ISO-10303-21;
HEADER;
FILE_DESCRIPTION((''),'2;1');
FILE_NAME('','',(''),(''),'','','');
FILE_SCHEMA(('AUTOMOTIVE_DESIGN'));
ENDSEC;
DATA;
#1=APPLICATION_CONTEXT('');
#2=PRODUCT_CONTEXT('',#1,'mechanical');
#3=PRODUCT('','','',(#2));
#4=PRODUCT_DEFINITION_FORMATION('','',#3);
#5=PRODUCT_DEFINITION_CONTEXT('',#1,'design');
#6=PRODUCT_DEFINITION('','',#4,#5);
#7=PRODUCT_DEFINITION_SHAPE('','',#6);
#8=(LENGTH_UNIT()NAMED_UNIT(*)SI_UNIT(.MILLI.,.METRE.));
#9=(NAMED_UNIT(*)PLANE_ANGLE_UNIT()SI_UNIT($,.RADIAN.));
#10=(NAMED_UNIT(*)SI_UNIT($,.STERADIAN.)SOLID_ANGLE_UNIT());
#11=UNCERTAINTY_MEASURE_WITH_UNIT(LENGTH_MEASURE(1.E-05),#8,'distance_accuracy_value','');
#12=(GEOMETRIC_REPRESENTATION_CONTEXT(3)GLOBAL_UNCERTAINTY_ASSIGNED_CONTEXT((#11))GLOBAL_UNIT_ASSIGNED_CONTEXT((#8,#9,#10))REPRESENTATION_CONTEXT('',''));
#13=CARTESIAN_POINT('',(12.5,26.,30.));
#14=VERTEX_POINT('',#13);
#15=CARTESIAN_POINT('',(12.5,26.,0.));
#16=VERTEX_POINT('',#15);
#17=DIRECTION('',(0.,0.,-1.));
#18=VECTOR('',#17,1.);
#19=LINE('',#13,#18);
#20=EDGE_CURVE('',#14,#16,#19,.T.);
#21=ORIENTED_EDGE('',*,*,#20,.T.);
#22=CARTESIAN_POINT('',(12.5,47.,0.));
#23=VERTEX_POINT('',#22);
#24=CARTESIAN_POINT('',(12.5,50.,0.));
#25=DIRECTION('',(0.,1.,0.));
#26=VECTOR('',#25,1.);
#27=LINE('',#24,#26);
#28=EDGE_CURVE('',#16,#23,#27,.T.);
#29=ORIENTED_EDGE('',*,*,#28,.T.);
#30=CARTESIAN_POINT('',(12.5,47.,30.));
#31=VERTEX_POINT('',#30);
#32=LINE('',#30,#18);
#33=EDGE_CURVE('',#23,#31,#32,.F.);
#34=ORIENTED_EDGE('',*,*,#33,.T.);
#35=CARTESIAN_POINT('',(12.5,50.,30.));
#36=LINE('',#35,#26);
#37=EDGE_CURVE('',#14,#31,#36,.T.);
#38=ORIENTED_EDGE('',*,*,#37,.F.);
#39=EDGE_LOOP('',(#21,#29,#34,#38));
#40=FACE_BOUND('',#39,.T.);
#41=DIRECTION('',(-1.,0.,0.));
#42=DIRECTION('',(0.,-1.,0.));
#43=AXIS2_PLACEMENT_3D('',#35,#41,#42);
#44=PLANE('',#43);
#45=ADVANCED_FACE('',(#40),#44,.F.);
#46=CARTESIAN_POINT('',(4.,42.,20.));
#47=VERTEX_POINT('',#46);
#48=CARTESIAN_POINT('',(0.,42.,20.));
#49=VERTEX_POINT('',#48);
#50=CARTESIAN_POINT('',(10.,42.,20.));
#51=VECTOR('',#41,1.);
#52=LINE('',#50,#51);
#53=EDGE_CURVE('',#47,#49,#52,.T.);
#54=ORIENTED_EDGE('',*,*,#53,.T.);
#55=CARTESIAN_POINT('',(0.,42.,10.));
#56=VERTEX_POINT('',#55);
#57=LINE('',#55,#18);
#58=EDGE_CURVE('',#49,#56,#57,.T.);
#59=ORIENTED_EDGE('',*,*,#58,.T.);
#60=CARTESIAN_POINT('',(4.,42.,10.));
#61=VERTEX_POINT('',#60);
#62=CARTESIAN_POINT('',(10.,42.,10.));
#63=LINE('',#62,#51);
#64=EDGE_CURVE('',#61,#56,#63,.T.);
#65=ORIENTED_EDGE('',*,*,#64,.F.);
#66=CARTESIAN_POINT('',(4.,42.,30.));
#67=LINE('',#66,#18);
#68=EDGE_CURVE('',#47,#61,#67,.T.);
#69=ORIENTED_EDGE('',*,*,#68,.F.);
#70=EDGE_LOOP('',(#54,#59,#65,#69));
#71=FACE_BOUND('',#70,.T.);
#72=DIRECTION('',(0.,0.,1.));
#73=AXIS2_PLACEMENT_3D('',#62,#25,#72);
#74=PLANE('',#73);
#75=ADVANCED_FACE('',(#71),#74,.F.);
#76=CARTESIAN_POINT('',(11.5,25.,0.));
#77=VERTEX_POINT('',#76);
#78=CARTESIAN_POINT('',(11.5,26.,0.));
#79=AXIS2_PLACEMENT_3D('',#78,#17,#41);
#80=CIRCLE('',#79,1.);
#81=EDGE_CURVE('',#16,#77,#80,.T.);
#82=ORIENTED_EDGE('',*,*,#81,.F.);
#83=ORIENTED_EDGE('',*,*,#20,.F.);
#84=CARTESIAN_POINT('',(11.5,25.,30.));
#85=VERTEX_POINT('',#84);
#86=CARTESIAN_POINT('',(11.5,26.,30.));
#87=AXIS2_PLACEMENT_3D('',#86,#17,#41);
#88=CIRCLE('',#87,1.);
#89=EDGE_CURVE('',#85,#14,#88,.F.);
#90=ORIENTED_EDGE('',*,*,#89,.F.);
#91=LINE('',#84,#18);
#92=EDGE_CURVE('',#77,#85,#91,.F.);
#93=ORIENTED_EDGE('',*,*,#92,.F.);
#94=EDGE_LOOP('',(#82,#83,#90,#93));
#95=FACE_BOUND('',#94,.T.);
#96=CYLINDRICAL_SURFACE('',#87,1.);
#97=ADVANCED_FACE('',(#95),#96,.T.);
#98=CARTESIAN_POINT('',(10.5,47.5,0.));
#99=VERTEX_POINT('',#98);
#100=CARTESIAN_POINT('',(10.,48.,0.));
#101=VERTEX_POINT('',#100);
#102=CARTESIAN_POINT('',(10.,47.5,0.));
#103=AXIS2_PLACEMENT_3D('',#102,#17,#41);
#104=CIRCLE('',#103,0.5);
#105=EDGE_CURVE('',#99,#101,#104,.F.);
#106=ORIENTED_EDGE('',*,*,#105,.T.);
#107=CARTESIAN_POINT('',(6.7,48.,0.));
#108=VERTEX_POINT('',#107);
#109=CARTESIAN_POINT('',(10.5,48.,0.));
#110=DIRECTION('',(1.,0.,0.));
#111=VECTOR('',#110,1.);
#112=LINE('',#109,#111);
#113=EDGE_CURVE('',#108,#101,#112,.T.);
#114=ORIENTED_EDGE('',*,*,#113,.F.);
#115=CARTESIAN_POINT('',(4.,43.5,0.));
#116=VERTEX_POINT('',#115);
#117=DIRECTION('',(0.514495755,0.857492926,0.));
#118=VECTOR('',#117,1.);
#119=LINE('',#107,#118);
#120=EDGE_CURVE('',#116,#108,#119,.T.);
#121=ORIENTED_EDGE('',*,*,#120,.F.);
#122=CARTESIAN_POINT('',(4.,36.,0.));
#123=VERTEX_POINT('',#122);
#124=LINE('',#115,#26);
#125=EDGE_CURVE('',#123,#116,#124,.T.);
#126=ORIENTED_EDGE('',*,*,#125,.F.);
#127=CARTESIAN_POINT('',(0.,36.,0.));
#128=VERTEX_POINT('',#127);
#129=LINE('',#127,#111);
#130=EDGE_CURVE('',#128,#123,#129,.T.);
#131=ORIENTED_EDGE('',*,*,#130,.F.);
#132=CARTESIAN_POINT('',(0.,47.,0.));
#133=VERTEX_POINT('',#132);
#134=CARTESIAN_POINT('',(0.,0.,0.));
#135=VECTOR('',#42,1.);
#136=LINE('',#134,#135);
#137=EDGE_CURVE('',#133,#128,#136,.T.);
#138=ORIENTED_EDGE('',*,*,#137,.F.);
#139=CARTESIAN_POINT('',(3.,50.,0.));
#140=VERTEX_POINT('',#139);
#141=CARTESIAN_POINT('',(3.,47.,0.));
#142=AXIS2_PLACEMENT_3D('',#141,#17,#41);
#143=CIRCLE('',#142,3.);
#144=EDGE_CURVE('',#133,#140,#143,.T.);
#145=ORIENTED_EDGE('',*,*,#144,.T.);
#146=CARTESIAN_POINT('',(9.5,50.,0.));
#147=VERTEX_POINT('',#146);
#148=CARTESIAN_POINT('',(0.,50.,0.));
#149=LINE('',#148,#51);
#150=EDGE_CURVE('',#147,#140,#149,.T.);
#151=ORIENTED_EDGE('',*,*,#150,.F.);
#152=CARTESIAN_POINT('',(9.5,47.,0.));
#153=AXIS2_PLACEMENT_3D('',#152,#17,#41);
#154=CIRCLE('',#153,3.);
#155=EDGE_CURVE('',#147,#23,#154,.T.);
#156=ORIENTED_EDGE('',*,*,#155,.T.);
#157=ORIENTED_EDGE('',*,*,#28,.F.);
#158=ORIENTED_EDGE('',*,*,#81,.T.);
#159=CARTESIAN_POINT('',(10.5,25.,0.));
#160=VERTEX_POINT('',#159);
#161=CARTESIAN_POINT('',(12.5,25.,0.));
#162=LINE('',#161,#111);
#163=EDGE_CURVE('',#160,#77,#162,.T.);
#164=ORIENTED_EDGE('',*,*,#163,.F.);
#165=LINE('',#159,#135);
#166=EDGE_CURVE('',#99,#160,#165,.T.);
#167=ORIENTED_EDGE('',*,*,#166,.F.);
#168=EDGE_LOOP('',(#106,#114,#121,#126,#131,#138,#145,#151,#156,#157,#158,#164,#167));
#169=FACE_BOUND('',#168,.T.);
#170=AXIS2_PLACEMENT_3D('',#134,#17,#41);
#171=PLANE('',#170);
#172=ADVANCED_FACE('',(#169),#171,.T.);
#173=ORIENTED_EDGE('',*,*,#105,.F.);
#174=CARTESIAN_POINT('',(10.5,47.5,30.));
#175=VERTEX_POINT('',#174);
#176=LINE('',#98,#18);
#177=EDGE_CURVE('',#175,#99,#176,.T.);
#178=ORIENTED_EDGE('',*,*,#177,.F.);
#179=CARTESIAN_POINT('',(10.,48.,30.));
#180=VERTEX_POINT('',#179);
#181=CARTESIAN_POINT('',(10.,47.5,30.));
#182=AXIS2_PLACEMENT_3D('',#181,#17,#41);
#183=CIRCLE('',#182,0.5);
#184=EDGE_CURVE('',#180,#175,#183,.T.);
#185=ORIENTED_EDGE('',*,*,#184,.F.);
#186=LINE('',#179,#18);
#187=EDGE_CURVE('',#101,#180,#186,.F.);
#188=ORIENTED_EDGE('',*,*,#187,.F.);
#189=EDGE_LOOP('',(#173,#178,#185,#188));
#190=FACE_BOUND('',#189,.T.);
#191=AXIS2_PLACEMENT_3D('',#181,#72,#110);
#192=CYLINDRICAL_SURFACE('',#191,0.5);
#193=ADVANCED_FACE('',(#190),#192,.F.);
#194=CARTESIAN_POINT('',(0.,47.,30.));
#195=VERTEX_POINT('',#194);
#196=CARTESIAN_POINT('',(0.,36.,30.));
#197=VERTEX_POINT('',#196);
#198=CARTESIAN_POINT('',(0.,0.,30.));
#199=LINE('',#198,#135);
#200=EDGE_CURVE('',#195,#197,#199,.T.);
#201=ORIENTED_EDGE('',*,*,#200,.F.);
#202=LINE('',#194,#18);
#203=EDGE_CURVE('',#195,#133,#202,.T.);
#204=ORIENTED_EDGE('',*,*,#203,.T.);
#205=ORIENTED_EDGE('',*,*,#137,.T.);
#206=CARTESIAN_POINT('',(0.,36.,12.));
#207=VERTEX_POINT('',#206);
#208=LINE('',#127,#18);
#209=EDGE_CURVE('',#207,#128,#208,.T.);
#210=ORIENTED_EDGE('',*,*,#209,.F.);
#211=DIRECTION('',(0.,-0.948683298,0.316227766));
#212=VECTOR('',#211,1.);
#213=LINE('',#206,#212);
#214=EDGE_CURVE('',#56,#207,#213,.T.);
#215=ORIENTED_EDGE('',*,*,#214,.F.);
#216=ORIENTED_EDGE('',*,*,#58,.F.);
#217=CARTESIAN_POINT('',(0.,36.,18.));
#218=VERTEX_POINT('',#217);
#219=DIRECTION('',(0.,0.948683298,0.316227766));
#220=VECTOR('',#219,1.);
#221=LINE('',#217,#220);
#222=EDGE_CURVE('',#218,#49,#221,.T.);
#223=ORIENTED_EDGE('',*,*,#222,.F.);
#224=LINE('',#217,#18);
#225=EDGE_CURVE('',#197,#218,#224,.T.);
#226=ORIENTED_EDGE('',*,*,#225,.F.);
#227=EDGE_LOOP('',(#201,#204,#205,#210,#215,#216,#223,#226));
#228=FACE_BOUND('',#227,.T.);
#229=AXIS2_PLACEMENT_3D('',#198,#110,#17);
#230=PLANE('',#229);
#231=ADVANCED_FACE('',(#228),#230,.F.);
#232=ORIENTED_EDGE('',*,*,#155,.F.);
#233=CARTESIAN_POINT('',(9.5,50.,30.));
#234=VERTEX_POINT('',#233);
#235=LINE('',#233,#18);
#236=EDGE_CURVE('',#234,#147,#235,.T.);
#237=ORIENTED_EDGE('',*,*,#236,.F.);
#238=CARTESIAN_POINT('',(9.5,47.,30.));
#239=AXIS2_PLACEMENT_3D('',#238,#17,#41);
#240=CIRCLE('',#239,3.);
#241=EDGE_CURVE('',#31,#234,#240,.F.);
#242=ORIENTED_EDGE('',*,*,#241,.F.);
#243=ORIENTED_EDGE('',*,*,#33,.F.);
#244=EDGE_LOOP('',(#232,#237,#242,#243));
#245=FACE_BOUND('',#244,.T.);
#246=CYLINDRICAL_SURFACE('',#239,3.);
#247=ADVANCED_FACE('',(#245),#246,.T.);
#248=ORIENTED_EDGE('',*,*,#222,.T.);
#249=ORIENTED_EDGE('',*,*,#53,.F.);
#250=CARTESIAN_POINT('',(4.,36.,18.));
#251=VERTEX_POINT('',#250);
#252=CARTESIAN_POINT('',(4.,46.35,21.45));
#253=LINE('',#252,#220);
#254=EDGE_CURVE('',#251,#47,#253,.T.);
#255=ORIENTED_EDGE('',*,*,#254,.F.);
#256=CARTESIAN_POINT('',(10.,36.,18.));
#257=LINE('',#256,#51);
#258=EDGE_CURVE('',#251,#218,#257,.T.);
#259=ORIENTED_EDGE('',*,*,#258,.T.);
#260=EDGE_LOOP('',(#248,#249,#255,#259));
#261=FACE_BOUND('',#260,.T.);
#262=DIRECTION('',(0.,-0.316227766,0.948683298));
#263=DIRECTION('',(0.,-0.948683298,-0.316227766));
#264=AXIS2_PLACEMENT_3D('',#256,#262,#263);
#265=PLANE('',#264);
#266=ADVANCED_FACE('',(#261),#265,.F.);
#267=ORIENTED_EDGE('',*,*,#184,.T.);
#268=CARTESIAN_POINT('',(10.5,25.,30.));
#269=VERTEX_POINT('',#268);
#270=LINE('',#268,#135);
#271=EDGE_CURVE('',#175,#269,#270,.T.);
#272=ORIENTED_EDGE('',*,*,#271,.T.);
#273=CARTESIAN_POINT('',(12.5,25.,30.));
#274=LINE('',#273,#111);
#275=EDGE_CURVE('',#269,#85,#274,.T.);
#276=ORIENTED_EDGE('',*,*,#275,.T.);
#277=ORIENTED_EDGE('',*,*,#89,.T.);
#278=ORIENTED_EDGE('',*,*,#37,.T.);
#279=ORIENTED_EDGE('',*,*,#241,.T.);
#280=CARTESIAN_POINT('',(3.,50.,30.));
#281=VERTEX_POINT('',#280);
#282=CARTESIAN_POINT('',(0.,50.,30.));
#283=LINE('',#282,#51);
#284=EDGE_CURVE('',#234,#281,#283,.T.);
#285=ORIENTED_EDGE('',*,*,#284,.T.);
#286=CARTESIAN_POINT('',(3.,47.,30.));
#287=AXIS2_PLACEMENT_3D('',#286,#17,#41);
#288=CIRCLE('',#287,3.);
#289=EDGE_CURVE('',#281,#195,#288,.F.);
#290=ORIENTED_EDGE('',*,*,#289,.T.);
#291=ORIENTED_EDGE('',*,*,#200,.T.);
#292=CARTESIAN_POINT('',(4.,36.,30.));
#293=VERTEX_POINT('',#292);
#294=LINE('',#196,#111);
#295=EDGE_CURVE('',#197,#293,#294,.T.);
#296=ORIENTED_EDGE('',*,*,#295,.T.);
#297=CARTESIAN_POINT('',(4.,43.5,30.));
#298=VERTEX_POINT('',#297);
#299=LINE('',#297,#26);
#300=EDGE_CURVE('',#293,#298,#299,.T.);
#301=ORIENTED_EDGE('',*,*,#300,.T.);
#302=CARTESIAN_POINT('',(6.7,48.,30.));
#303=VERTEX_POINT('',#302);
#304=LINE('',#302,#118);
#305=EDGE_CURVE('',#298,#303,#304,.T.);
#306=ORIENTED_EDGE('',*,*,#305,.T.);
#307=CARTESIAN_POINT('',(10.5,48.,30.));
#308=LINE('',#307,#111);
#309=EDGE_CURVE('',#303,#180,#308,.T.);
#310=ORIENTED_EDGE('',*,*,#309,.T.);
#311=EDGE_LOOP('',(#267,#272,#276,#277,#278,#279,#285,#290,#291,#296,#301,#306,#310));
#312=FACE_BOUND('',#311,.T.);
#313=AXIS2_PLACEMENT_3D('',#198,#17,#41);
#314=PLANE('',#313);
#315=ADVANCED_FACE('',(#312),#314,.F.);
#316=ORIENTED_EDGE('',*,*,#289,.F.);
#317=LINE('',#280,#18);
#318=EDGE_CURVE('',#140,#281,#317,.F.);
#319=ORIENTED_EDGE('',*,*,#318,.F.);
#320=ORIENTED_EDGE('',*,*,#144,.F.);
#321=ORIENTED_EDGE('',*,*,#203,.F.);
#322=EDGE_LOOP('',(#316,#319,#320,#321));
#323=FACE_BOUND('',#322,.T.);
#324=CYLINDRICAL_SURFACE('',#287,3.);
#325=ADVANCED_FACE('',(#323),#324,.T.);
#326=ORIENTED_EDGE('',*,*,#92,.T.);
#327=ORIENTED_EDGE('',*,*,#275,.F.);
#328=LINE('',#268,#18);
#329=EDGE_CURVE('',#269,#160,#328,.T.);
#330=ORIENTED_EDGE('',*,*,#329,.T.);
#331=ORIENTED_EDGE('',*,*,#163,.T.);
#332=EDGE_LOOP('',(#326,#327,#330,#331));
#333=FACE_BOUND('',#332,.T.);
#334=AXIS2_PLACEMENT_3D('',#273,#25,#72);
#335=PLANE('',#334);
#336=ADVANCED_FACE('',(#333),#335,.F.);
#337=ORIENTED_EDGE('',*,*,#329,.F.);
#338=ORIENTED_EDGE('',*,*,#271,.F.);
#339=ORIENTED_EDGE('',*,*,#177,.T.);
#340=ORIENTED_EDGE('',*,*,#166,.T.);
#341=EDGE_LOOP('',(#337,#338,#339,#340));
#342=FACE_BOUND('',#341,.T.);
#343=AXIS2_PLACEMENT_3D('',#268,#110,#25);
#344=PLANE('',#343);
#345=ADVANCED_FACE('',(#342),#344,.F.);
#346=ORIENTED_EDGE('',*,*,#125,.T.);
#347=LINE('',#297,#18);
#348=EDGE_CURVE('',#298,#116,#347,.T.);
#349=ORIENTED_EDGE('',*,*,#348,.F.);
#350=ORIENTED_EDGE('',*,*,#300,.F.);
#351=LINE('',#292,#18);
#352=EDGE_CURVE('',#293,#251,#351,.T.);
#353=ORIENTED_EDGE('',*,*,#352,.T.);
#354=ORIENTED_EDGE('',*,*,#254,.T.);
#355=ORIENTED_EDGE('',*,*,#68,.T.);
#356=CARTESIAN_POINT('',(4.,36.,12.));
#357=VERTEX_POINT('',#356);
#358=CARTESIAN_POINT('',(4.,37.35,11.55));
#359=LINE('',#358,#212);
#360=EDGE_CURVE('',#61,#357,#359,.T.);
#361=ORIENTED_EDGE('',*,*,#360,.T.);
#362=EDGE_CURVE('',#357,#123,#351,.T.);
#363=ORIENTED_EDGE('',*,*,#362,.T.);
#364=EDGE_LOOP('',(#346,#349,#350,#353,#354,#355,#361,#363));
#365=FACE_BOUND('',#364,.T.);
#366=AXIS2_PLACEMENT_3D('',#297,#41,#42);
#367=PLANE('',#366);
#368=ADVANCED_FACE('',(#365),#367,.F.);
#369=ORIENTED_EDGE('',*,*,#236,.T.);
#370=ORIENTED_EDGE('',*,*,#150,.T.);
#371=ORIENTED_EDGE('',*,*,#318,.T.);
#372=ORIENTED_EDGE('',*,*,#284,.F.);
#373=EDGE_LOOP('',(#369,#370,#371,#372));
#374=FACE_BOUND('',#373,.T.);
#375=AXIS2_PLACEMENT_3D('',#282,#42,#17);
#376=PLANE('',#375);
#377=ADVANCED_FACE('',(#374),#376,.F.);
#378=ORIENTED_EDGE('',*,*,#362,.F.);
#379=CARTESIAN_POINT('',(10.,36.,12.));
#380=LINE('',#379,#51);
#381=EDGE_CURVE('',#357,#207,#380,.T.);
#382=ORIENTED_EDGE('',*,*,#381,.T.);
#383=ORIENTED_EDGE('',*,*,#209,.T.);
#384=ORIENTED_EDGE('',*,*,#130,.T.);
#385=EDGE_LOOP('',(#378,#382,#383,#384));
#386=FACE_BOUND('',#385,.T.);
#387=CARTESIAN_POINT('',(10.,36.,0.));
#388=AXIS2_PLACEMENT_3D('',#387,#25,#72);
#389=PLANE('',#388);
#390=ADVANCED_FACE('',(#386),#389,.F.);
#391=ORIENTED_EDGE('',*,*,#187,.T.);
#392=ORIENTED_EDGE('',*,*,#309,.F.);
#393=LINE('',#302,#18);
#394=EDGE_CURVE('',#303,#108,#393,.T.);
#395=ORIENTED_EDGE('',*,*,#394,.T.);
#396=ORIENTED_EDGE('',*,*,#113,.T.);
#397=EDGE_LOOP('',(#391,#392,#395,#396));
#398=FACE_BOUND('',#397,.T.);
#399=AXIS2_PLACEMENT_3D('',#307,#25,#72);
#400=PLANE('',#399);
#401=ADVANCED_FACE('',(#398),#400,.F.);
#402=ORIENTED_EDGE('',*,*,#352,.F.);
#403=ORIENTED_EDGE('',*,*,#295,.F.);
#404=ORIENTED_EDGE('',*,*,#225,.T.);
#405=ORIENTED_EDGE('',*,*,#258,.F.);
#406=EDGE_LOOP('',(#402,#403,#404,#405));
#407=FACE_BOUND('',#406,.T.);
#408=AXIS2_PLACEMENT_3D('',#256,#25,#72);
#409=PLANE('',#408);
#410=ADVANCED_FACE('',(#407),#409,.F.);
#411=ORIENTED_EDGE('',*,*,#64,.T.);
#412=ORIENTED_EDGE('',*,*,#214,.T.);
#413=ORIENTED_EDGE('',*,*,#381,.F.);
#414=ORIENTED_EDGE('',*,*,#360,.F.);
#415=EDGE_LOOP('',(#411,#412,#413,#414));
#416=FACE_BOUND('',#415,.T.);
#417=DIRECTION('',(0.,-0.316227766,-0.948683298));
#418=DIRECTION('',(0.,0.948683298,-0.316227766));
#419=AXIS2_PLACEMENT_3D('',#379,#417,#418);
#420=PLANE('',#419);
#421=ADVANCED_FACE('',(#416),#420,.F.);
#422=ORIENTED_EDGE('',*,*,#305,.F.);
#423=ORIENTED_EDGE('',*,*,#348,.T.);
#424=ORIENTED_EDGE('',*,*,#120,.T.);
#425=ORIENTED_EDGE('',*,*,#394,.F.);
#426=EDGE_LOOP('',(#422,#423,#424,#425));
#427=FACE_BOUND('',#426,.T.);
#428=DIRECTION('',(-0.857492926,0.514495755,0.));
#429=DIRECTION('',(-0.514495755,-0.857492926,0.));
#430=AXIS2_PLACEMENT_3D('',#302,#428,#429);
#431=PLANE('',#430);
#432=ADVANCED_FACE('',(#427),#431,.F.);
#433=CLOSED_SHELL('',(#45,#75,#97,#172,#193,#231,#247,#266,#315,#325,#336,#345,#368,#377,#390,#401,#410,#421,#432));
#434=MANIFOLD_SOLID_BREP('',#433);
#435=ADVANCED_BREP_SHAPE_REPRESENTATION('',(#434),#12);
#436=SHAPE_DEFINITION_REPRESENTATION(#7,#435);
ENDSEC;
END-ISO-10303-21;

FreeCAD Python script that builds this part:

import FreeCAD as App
import Part
import Sketcher
from FreeCAD import Vector
Q = App.Units.Quantity


def edges_at(feature, points):
    """Names of the edges that pass closest to the given points."""
    edges = feature.Shape.Edges
    near = lambda p: min(range(len(edges)), key=lambda i: edges[i].distToShape(Part.Vertex(*p))[0])
    return sorted({f"Edge{near(p) + 1}" for p in points})


def add_polygon(sketch, points):
    """Adds a closed chain of lines whose ends are joined by coincident constraints."""
    first, n = sketch.GeometryCount, len(points)
    for a, b in zip(points, points[1:] + points[:1]):
        sketch.addGeometry(Part.LineSegment(App.Vector(*a, 0), App.Vector(*b, 0)), False)
    for i in range(n):
        sketch.addConstraint(Sketcher.Constraint("Coincident", first + i, 2, first + (i + 1) % n, 1))

doc = App.newDocument("Part")
body = doc.addObject("PartDesign::Body", "Body")

sketch1 = body.newObject("Sketcher::SketchObject", "Sketch")
sketch1.AttachmentSupport = (doc.getObject("XY_Plane"), [""])
sketch1.MapMode = "FlatFace"
add_polygon(sketch1, [(0, 50), (0, 0), (4, 0), (4, 43.5), (6.7, 48), (10.5, 48), (10.5, 25), (12.5, 25), (12.5, 50)])
sketch1.addConstraint([
    Sketcher.Constraint("Vertical", 0),
    Sketcher.Constraint("Horizontal", 1),
    Sketcher.Constraint("Vertical", 2),
    Sketcher.Constraint("Horizontal", 4),
    Sketcher.Constraint("Vertical", 5),
    Sketcher.Constraint("Horizontal", 6),
    Sketcher.Constraint("Vertical", 7),
    Sketcher.Constraint("Horizontal", 8),
    Sketcher.Constraint("Coincident", 0, 2, -1, 1),
    Sketcher.Constraint("DistanceX", 1, 1, 1, 2, Q("4 mm")),
    Sketcher.Constraint("DistanceX", 6, 1, 6, 2, Q("2 mm")),
    Sketcher.Constraint("DistanceY", 0, 2, 0, 1, Q("50 mm")),
    Sketcher.Constraint("DistanceY", 5, 2, 5, 1, Q("23 mm")),
    Sketcher.Constraint("DistanceY", 7, 1, 7, 2, Q("25 mm")),
    Sketcher.Constraint("DistanceX", 4, 1, 4, 2, Q("3.8 mm")),
    Sketcher.Constraint("DistanceX", 8, 2, 8, 1, Q("12.5 mm")),
    Sketcher.Constraint("DistanceY", 2, 1, 2, 2, Q("43.5 mm")),
])
pad1 = body.newObject("PartDesign::Pad", "Pad")
pad1.Profile = sketch1
pad1.Length = 30
doc.recompute()

fillet = body.newObject("PartDesign::Fillet", "Fillet")
fillet.Base = (pad1, edges_at(pad1, [(0, 50, 15), (12.5, 50, 15)]))
fillet.Radius = 3
doc.recompute()

fillet2 = body.newObject("PartDesign::Fillet", "Fillet001")
fillet2.Base = (fillet, edges_at(fillet, [(10.5, 48, 15)]))
fillet2.Radius = 0.5
doc.recompute()

fillet3 = body.newObject("PartDesign::Fillet", "Fillet002")
fillet3.Base = (fillet2, edges_at(fillet2, [(12.5, 25, 15)]))
fillet3.Radius = 1

sketch2 = body.newObject("Sketcher::SketchObject", "Sketch001")
sketch2.AttachmentSupport = (doc.getObject("YZ_Plane"), [""])
sketch2.MapMode = "FlatFace"
add_polygon(sketch2, [(42, 20), (42, 10), (36, 12), (36, 0), (0, 0), (0, 30), (36, 30), (36, 18)])
sketch2.addConstraint([
    Sketcher.Constraint("Vertical", 0),
    Sketcher.Constraint("Vertical", 2),
    Sketcher.Constraint("Horizontal", 3),
    Sketcher.Constraint("Vertical", 4),
    Sketcher.Constraint("Horizontal", 5),
    Sketcher.Constraint("Vertical", 6),
    Sketcher.Constraint("Coincident", 3, 2, -1, 1),
    Sketcher.Constraint("Vertical", 2, 2, 5, 2),
    Sketcher.Constraint("Equal", 2, 6),
    Sketcher.Constraint("Equal", 1, 7),
    Sketcher.Constraint("DistanceX", 3, 2, 3, 1, Q("36 mm")),
    Sketcher.Constraint("DistanceY", 0, 2, 0, 1, Q("10 mm")),
    Sketcher.Constraint("DistanceY", 2, 2, 2, 1, Q("12 mm")),
    Sketcher.Constraint("DistanceY", 4, 1, 4, 2, Q("30 mm")),
    Sketcher.Constraint("DistanceX", -1, 1, 0, 2, Q("42 mm")),
])
pocket1 = body.newObject("PartDesign::Pocket", "Pocket")
pocket1.Profile = sketch2
pocket1.Length = 10
pocket1.Reversed = True

doc.recompute()
